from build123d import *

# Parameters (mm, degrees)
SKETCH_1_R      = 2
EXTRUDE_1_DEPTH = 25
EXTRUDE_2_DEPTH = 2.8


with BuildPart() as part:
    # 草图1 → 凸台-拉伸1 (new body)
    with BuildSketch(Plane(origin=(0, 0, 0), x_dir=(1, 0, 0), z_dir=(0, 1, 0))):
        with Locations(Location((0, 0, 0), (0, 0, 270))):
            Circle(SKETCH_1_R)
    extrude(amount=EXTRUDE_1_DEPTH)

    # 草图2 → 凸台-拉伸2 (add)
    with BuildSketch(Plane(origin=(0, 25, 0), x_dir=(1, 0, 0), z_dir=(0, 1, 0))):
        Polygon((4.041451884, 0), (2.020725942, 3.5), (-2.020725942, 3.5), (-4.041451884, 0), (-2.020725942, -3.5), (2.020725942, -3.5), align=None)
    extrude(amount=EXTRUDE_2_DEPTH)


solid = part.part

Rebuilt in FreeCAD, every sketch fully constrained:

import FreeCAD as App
import Part
import Sketcher
Q = App.Units.Quantity

doc = App.newDocument("Part")
body = doc.addObject("PartDesign::Body", "Body")

sketch1 = body.newObject("Sketcher::SketchObject", "Sketch")
sketch1.AttachmentSupport = (doc.getObject("XZ_Plane"), [""])
sketch1.MapMode = "FlatFace"
sketch1.addGeometry(Part.Circle(App.Vector(0, 0, 0), App.Vector(0, 0, 1), 2), False)
sketch1.addConstraint([
    Sketcher.Constraint("Coincident", 0, 3, -1, 1),
    Sketcher.Constraint("Diameter", 0, 4.0),
])
pad1 = body.newObject("PartDesign::Pad", "Pad")
pad1.Profile = sketch1
pad1.Length = 25
pad1.Reversed = True

sketch2 = body.newObject("Sketcher::SketchObject", "Sketch001")
sketch2.AttachmentSupport = (doc.getObject("XZ_Plane"), [""])
sketch2.MapMode = "FlatFace"
sketch2.AttachmentOffset = App.Placement(App.Vector(0, 0, -25), App.Rotation())
sketch2.addGeometry([
    Part.LineSegment(App.Vector(4, 0, 0), App.Vector(2, -3.5, 0)),
    Part.LineSegment(App.Vector(2, -3.5, 0), App.Vector(-2, -3.5, 0)),
    Part.LineSegment(App.Vector(-2, -3.5, 0), App.Vector(-4, 0, 0)),
    Part.LineSegment(App.Vector(-4, 0, 0), App.Vector(-2, 3.5, 0)),
    Part.LineSegment(App.Vector(-2, 3.5, 0), App.Vector(2, 3.5, 0)),
    Part.LineSegment(App.Vector(2, 3.5, 0), App.Vector(4, 0, 0)),
], False)
sketch2.addConstraint([
    Sketcher.Constraint("Coincident", 0, 2, 1, 1),
    Sketcher.Constraint("Coincident", 1, 2, 2, 1),
    Sketcher.Constraint("Coincident", 2, 2, 3, 1),
    Sketcher.Constraint("Coincident", 3, 2, 4, 1),
    Sketcher.Constraint("Coincident", 4, 2, 5, 1),
    Sketcher.Constraint("Coincident", 5, 2, 0, 1),
    Sketcher.Constraint("Horizontal", 1),
    Sketcher.Constraint("Horizontal", 4),
    Sketcher.Constraint("Symmetric", 0, 2, 3, 2, -1, 1),
    Sketcher.Constraint("Symmetric", 2, 2, 5, 2, -1, 1),
    Sketcher.Constraint("PointOnObject", 2, 2, -1),
    Sketcher.Constraint("Parallel", 2, 5),
    Sketcher.Constraint("Vertical", 1, 2, 3, 2),
    Sketcher.Constraint("Angle", 0, Q("-120 deg")),
    Sketcher.Constraint("DistanceY", 1, 2, 3, 2, 7.0),
    Sketcher.Constraint("DistanceX", 1, 2, 1, 1, 4.041452),
])
pad2 = body.newObject("PartDesign::Pad", "Pad001")
pad2.Profile = sketch2
pad2.Length = 2.8
pad2.Reversed = True

doc.recompute()
